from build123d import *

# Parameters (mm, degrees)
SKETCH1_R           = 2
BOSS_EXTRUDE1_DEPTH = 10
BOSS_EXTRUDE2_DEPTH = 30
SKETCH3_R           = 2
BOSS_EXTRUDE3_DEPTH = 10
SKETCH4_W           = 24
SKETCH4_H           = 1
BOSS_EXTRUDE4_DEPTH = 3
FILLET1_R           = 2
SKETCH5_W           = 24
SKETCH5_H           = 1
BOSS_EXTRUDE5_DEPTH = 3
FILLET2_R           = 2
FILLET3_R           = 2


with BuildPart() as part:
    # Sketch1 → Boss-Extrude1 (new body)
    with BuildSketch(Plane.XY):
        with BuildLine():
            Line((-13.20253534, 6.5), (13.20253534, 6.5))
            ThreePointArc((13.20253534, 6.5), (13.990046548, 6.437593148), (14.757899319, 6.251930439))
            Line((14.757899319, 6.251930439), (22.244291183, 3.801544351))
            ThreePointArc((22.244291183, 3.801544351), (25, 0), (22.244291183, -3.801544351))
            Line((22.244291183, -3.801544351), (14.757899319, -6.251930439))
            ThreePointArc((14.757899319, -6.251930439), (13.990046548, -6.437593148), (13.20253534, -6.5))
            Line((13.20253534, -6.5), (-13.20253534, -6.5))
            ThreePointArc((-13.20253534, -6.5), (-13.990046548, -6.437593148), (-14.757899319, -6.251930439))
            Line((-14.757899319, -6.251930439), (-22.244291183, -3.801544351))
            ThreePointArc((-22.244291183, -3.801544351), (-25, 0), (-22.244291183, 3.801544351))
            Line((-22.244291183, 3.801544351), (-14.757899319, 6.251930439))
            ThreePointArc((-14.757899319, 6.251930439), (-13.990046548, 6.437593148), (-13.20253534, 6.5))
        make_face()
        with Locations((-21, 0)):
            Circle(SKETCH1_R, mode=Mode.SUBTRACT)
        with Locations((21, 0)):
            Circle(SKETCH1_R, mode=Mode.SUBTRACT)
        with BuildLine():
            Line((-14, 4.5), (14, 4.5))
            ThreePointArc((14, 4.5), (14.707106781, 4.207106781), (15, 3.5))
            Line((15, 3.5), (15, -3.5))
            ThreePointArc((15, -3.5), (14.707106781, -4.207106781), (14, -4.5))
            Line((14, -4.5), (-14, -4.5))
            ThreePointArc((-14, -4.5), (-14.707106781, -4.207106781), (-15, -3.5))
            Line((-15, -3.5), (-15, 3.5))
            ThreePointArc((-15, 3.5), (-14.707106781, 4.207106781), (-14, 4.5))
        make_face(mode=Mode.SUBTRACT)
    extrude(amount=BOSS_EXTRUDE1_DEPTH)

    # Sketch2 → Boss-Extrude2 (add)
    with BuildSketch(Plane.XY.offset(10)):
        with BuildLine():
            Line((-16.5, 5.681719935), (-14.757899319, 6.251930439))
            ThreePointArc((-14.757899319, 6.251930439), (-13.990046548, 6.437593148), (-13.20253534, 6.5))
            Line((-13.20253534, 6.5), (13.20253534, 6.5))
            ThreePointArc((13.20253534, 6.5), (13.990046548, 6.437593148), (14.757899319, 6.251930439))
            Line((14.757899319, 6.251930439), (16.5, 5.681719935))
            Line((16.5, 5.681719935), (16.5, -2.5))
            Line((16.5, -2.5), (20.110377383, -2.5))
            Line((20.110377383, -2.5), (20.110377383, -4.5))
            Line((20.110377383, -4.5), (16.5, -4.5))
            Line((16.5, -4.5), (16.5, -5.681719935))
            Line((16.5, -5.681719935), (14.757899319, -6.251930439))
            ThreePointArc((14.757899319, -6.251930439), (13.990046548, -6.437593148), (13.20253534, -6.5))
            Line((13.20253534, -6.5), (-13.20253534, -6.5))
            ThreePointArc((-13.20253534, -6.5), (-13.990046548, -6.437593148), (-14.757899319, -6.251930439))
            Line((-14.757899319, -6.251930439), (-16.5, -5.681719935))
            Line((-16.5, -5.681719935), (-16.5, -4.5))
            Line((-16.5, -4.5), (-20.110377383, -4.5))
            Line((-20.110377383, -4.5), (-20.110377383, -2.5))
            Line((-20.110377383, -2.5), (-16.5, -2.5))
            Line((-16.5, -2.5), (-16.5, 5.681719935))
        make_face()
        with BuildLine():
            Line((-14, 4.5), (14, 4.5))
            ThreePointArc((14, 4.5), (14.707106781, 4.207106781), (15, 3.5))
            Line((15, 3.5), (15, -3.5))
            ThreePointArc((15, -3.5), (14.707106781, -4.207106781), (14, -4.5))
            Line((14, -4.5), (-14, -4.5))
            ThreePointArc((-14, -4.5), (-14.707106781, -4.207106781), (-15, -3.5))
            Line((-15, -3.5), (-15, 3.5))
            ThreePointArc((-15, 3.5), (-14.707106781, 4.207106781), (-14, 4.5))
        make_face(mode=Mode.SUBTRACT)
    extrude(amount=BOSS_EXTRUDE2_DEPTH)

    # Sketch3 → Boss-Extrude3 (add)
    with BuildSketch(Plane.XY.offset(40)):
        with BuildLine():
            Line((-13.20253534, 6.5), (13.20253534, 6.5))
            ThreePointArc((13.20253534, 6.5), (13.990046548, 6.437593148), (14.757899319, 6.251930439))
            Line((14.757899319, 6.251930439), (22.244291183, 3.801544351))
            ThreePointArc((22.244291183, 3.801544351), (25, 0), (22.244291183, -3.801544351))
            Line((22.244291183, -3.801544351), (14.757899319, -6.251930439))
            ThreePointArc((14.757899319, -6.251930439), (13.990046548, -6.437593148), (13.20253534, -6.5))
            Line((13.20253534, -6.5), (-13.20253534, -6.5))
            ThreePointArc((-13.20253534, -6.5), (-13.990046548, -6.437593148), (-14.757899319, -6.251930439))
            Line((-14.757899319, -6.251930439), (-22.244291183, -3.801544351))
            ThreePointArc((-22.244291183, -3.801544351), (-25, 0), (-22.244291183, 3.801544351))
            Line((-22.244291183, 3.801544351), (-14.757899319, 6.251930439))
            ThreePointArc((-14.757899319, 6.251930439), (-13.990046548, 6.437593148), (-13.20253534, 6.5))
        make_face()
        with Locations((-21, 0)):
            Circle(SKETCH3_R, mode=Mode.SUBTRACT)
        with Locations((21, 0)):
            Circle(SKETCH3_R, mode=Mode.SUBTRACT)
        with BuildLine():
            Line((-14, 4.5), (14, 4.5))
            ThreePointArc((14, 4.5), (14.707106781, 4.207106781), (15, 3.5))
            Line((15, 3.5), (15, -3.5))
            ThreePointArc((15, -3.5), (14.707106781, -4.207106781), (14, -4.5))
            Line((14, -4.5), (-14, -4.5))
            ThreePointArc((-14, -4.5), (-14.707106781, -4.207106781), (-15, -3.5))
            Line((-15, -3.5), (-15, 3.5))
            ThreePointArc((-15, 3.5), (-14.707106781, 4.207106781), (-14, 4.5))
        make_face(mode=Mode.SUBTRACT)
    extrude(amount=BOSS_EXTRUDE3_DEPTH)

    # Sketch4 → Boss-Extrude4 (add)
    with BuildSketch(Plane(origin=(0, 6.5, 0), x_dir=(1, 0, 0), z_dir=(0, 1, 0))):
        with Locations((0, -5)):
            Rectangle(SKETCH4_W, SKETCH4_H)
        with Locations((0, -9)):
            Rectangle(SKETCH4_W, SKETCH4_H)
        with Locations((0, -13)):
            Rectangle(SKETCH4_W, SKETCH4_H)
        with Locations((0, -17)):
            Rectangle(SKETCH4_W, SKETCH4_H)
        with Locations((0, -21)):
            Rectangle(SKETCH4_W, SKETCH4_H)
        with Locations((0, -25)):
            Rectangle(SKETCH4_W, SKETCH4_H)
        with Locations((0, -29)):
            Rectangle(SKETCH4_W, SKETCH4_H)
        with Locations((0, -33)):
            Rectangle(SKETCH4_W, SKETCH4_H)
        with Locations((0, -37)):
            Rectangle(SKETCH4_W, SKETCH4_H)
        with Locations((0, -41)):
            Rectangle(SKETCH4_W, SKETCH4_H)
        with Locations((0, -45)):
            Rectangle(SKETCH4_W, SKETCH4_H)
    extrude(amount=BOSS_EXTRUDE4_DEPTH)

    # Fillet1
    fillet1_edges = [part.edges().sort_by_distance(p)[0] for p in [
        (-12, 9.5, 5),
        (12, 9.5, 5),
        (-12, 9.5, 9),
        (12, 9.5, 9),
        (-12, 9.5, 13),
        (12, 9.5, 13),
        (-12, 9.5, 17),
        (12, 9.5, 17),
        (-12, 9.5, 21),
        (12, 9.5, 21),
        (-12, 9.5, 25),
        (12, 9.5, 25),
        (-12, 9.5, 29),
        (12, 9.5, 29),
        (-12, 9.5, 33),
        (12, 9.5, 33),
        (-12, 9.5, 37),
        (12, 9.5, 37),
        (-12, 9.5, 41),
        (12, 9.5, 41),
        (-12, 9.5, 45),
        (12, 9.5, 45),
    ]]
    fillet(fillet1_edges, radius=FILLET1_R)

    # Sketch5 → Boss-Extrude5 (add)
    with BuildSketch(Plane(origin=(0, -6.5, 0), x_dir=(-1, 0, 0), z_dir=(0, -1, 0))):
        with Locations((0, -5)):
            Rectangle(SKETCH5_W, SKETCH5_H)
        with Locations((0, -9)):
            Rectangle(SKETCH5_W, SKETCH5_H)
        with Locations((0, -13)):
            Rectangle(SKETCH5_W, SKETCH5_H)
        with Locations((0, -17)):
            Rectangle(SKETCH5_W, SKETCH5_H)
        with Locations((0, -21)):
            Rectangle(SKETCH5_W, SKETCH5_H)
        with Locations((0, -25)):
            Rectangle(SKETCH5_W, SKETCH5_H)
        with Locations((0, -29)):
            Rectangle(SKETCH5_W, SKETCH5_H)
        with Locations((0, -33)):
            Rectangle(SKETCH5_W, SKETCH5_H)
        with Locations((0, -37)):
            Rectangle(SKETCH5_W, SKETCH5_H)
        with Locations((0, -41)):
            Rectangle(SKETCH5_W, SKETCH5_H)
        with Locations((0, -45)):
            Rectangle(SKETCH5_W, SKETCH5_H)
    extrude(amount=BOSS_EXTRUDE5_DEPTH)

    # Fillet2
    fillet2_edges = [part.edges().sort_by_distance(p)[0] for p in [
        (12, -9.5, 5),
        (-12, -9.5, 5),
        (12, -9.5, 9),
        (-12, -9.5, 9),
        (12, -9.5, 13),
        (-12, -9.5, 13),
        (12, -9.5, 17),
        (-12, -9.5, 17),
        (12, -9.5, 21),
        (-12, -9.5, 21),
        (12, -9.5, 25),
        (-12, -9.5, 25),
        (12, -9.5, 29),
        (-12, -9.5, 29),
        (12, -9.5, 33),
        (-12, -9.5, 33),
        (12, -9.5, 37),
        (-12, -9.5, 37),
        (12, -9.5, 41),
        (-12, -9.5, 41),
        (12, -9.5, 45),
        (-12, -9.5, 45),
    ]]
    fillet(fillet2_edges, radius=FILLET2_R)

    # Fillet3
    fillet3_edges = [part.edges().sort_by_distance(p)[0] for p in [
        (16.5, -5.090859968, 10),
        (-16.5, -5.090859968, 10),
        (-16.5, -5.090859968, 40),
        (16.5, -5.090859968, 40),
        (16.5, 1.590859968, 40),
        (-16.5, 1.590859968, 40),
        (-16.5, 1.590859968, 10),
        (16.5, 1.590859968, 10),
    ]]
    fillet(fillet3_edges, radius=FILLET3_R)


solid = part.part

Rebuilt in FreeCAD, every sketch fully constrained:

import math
import FreeCAD as App
import Part
import Sketcher
Q = App.Units.Quantity


def edges_at(feature, points):
    """Names of the edges that pass closest to the given points."""
    edges = feature.Shape.Edges
    near = lambda p: min(range(len(edges)), key=lambda i: edges[i].distToShape(Part.Vertex(*p))[0])
    return sorted({f"Edge{near(p) + 1}" for p in points})


def add_polygon(sketch, points):
    """Adds a closed chain of lines whose ends are joined by coincident constraints."""
    first, n = sketch.GeometryCount, len(points)
    for a, b in zip(points, points[1:] + points[:1]):
        sketch.addGeometry(Part.LineSegment(App.Vector(*a, 0), App.Vector(*b, 0)), False)
    for i in range(n):
        sketch.addConstraint(Sketcher.Constraint("Coincident", first + i, 2, first + (i + 1) % n, 1))

doc = App.newDocument("Part")
params = doc.addObject("Spreadsheet::Sheet", "Params")
for row, (alias, value) in enumerate([
    ("sketch1_diameter", "4 mm"),
    ("sketch1_radius", "5 mm"),
    ("sketch1_radius2", "4 mm"),
    ("sketch1_radius3", "1 mm"),
    ("sketch1_width", "28 mm"),
    ("pad1_length", "10 mm"),
    ("sketch2_radius", "5 mm"),
    ("sketch2_radius2", "1 mm"),
    ("sketch2_width", "28 mm"),
    ("sketch2_height", "2 mm"),
    ("sketch2_height2", "7 mm"),
    ("pad2_length", "30 mm"),
    ("sketch3_diameter", "4 mm"),
    ("sketch3_radius", "5 mm"),
    ("sketch3_radius2", "4 mm"),
    ("sketch3_radius3", "1 mm"),
    ("sketch3_width", "28 mm"),
    ("pad3_length", "10 mm"),
    ("sketch4_width", "24 mm"),
    ("sketch4_height", "1 mm"),
    ("pad4_length", "3 mm"),
    ("fillet_radius", "2 mm"),
    ("sketch5_width", "24 mm"),
    ("sketch5_height", "1 mm"),
    ("pad5_length", "3 mm"),
    ("fillet2_radius", "2 mm"),
    ("fillet3_radius", "2 mm"),
], start=1):
    params.set(f"A{row}", alias)
    params.set(f"B{row}", "=" + value)
    params.setAlias(f"B{row}", alias)

body = doc.addObject("PartDesign::Body", "Body")

# Sketch on XY plane
sketch1 = doc.addObject("Sketcher::SketchObject", "Sketch")
body.addObject(sketch1)
sketch1.AttachmentSupport = (doc.XY_Plane, [""])
sketch1.MapMode = "FlatFace"
sketch1.addGeometry([
    Part.LineSegment(App.Vector(13.202535, 6.5, 0), App.Vector(-13.202535, 6.5, 0)),  # 0
    Part.ArcOfCircle(Part.Circle(App.Vector(-13.202535, 1.5, 0), App.Vector(0, 0, 1), 5), math.radians(90), math.radians(108.123894)),  # 1
    Part.LineSegment(App.Vector(-14.757899, 6.25193, 0), App.Vector(-22.244291, 3.801544, 0)),  # 2
    Part.ArcOfCircle(Part.Circle(App.Vector(-21, 0, 0), App.Vector(0, 0, 1), 4), math.radians(108.123894), math.radians(251.876106)),  # 3
    Part.LineSegment(App.Vector(-22.244291, -3.801544, 0), App.Vector(-14.757899, -6.25193, 0)),  # 4
    Part.ArcOfCircle(Part.Circle(App.Vector(-13.202535, -1.5, 0), App.Vector(0, 0, 1), 5), math.radians(-108.123894), math.radians(-90)),  # 5
    Part.LineSegment(App.Vector(-13.202535, -6.5, 0), App.Vector(13.202535, -6.5, 0)),  # 6
    Part.ArcOfCircle(Part.Circle(App.Vector(13.202535, -1.5, 0), App.Vector(0, 0, 1), 5), math.radians(-90), math.radians(-71.876106)),  # 7
    Part.LineSegment(App.Vector(14.757899, -6.25193, 0), App.Vector(22.244291, -3.801544, 0)),  # 8
    Part.ArcOfCircle(Part.Circle(App.Vector(21, 0, 0), App.Vector(0, 0, 1), 4), math.radians(-71.876106), math.radians(71.876106)),  # 9
    Part.LineSegment(App.Vector(22.244291, 3.801544, 0), App.Vector(14.757899, 6.25193, 0)),  # 10
    Part.ArcOfCircle(Part.Circle(App.Vector(13.202535, 1.5, 0), App.Vector(0, 0, 1), 5), math.radians(71.876106), math.radians(90)),  # 11
    Part.Circle(App.Vector(21, 0, 0), App.Vector(0, 0, 1), 2),  # 12
    Part.LineSegment(App.Vector(-14, 4.5, 0), App.Vector(14, 4.5, 0)),  # 13
    Part.ArcOfCircle(Part.Circle(App.Vector(14, 3.5, 0), App.Vector(0, 0, 1), 1), math.radians(0), math.radians(90)),  # 14
    Part.LineSegment(App.Vector(15, 3.5, 0), App.Vector(15, -3.5, 0)),  # 15
    Part.ArcOfCircle(Part.Circle(App.Vector(14, -3.5, 0), App.Vector(0, 0, 1), 1), math.radians(-90), math.radians(0)),  # 16
    Part.LineSegment(App.Vector(14, -4.5, 0), App.Vector(-14, -4.5, 0)),  # 17
    Part.ArcOfCircle(Part.Circle(App.Vector(-14, -3.5, 0), App.Vector(0, 0, 1), 1), math.radians(-180), math.radians(-90)),  # 18
    Part.LineSegment(App.Vector(-15, -3.5, 0), App.Vector(-15, 3.5, 0)),  # 19
    Part.ArcOfCircle(Part.Circle(App.Vector(-14, 3.5, 0), App.Vector(0, 0, 1), 1), math.radians(90), math.radians(180)),  # 20
    Part.Circle(App.Vector(-21, 0, 0), App.Vector(0, 0, 1), 2),  # 21
], False)
sketch1.addConstraint([
    Sketcher.Constraint("Tangent", 0, 2, 1, 1),
    Sketcher.Constraint("Tangent", 1, 2, 2, 1),
    Sketcher.Constraint("Tangent", 2, 2, 3, 1),
    Sketcher.Constraint("Tangent", 3, 2, 4, 1),
    Sketcher.Constraint("Tangent", 4, 2, 5, 1),
    Sketcher.Constraint("Tangent", 5, 2, 6, 1),
    Sketcher.Constraint("Tangent", 6, 2, 7, 1),
    Sketcher.Constraint("Tangent", 7, 2, 8, 1),
    Sketcher.Constraint("Tangent", 8, 2, 9, 1),
    Sketcher.Constraint("Tangent", 9, 2, 10, 1),
    Sketcher.Constraint("Tangent", 10, 2, 11, 1),
    Sketcher.Constraint("Tangent", 11, 2, 0, 1),
    Sketcher.Constraint("Tangent", 13, 2, 14, 2),
    Sketcher.Constraint("Tangent", 14, 1, 15, 1),
    Sketcher.Constraint("Tangent", 15, 2, 16, 2),
    Sketcher.Constraint("Tangent", 16, 1, 17, 1),
    Sketcher.Constraint("Tangent", 17, 2, 18, 2),
    Sketcher.Constraint("Tangent", 18, 1, 19, 1),
    Sketcher.Constraint("Tangent", 19, 2, 20, 2),
    Sketcher.Constraint("Tangent", 20, 1, 13, 1),
    Sketcher.Constraint("Horizontal", 0),
    Sketcher.Constraint("Horizontal", 6),
    Sketcher.Constraint("Horizontal", 13),
    Sketcher.Constraint("Vertical", 15),
    Sketcher.Constraint("Horizontal", 17),
    Sketcher.Constraint("Vertical", 19),
    Sketcher.Constraint("Coincident", 12, 3, 9, 3),
    Sketcher.Constraint("Coincident", 21, 3, 3, 3),
    Sketcher.Constraint("Equal", 1, 5),
    Sketcher.Constraint("Equal", 5, 7),
    Sketcher.Constraint("Equal", 3, 9),
    Sketcher.Constraint("Equal", 7, 11),
    Sketcher.Constraint("Equal", 14, 16),
    Sketcher.Constraint("Equal", 16, 18),
    Sketcher.Constraint("Equal", 18, 20),
    Sketcher.Constraint("Equal", 12, 21),
    Sketcher.Constraint("Symmetric", 1, 3, 7, 3, -1, 1),
    Sketcher.Constraint("Symmetric", 3, 3, 9, 3, -1, 1),
    Sketcher.Constraint("Symmetric", 14, 3, 18, 3, -1, 1),
    Sketcher.Constraint("Symmetric", 4, 2, 7, 2, -2),
    Sketcher.Constraint("Parallel", 4, 10),
    Sketcher.Constraint("Diameter", 12, Q("4 mm")),
    Sketcher.Constraint("Radius", 1, Q("5 mm")),
    Sketcher.Constraint("Radius", 3, Q("4 mm")),
    Sketcher.Constraint("Radius", 14, Q("1 mm")),
    Sketcher.Constraint("DistanceX", 13, 1, 13, 2, Q("28 mm")),
    Sketcher.Constraint("DistanceY", 15, 2, 15, 1, Q("7 mm")),
    Sketcher.Constraint("DistanceX", 3, 3, -1, 1, Q("21 mm")),
    Sketcher.Constraint("DistanceY", 5, 3, 1, 3, Q("3 mm")),
    Sketcher.Constraint("DistanceX", 0, 2, 0, 1, Q("26.405071 mm")),
])
sketch1.setExpression("Constraints[41]", "Params.sketch1_diameter")
sketch1.setExpression("Constraints[42]", "Params.sketch1_radius")
sketch1.setExpression("Constraints[43]", "Params.sketch1_radius2")
sketch1.setExpression("Constraints[44]", "Params.sketch1_radius3")
sketch1.setExpression("Constraints[45]", "Params.sketch1_width")
pad1 = doc.addObject("PartDesign::Pad", "Pad")
body.addObject(pad1)
pad1.Profile = sketch1
pad1.setExpression("Length", "Params.pad1_length")

# Sketch on XY plane
sketch2 = doc.addObject("Sketcher::SketchObject", "Sketch001")
body.addObject(sketch2)
sketch2.AttachmentSupport = (doc.XY_Plane, [""])
sketch2.MapMode = "FlatFace"
sketch2.AttachmentOffset = App.Placement(App.Vector(0, 0, 10), App.Rotation())
sketch2.addGeometry([
    Part.LineSegment(App.Vector(-14.757899, 6.25193, 0), App.Vector(-16.5, 5.68172, 0)),  # 0
    Part.LineSegment(App.Vector(-16.5, 5.68172, 0), App.Vector(-16.5, -2.5, 0)),  # 1
    Part.LineSegment(App.Vector(-16.5, -2.5, 0), App.Vector(-20.110377, -2.5, 0)),  # 2
    Part.LineSegment(App.Vector(-20.110377, -2.5, 0), App.Vector(-20.110377, -4.5, 0)),  # 3
    Part.LineSegment(App.Vector(-20.110377, -4.5, 0), App.Vector(-16.5, -4.5, 0)),  # 4
    Part.LineSegment(App.Vector(-16.5, -4.5, 0), App.Vector(-16.5, -5.68172, 0)),  # 5
    Part.LineSegment(App.Vector(-16.5, -5.68172, 0), App.Vector(-14.757899, -6.25193, 0)),  # 6
    Part.ArcOfCircle(Part.Circle(App.Vector(-13.202535, -1.5, 0), App.Vector(0, 0, 1), 5), math.radians(-108.123894), math.radians(-90)),  # 7
    Part.LineSegment(App.Vector(-13.202535, -6.5, 0), App.Vector(13.202535, -6.5, 0)),  # 8
    Part.ArcOfCircle(Part.Circle(App.Vector(13.202535, -1.5, 0), App.Vector(0, 0, 1), 5), math.radians(-90), math.radians(-71.876106)),  # 9
    Part.LineSegment(App.Vector(14.757899, -6.25193, 0), App.Vector(16.5, -5.68172, 0)),  # 10
    Part.LineSegment(App.Vector(16.5, -5.68172, 0), App.Vector(16.5, -4.5, 0)),  # 11
    Part.LineSegment(App.Vector(16.5, -4.5, 0), App.Vector(20.110377, -4.5, 0)),  # 12
    Part.LineSegment(App.Vector(20.110377, -4.5, 0), App.Vector(20.110377, -2.5, 0)),  # 13
    Part.LineSegment(App.Vector(20.110377, -2.5, 0), App.Vector(16.5, -2.5, 0)),  # 14
    Part.LineSegment(App.Vector(16.5, -2.5, 0), App.Vector(16.5, 5.68172, 0)),  # 15
    Part.LineSegment(App.Vector(16.5, 5.68172, 0), App.Vector(14.757899, 6.25193, 0)),  # 16
    Part.ArcOfCircle(Part.Circle(App.Vector(13.202535, 1.5, 0), App.Vector(0, 0, 1), 5), math.radians(71.876106), math.radians(90)),  # 17
    Part.LineSegment(App.Vector(13.202535, 6.5, 0), App.Vector(-13.202535, 6.5, 0)),  # 18
    Part.ArcOfCircle(Part.Circle(App.Vector(-13.202535, 1.5, 0), App.Vector(0, 0, 1), 5), math.radians(90), math.radians(108.123894)),  # 19
    Part.LineSegment(App.Vector(-14, 4.5, 0), App.Vector(14, 4.5, 0)),  # 20
    Part.ArcOfCircle(Part.Circle(App.Vector(14, 3.5, 0), App.Vector(0, 0, 1), 1), math.radians(0), math.radians(90)),  # 21
    Part.LineSegment(App.Vector(15, 3.5, 0), App.Vector(15, -3.5, 0)),  # 22
    Part.ArcOfCircle(Part.Circle(App.Vector(14, -3.5, 0), App.Vector(0, 0, 1), 1), math.radians(-90), math.radians(0)),  # 23
    Part.LineSegment(App.Vector(14, -4.5, 0), App.Vector(-14, -4.5, 0)),  # 24
    Part.ArcOfCircle(Part.Circle(App.Vector(-14, -3.5, 0), App.Vector(0, 0, 1), 1), math.radians(-180), math.radians(-90)),  # 25
    Part.LineSegment(App.Vector(-15, -3.5, 0), App.Vector(-15, 3.5, 0)),  # 26
    Part.ArcOfCircle(Part.Circle(App.Vector(-14, 3.5, 0), App.Vector(0, 0, 1), 1), math.radians(90), math.radians(180)),  # 27
], False)
sketch2.addConstraint([
    Sketcher.Constraint("Coincident", 0, 2, 1, 1),
    Sketcher.Constraint("Coincident", 1, 2, 2, 1),
    Sketcher.Constraint("Coincident", 2, 2, 3, 1),
    Sketcher.Constraint("Coincident", 3, 2, 4, 1),
    Sketcher.Constraint("Coincident", 4, 2, 5, 1),
    Sketcher.Constraint("Coincident", 5, 2, 6, 1),
    Sketcher.Constraint("Tangent", 6, 2, 7, 1),
    Sketcher.Constraint("Tangent", 7, 2, 8, 1),
    Sketcher.Constraint("Tangent", 8, 2, 9, 1),
    Sketcher.Constraint("Tangent", 9, 2, 10, 1),
    Sketcher.Constraint("Coincident", 10, 2, 11, 1),
    Sketcher.Constraint("Coincident", 11, 2, 12, 1),
    Sketcher.Constraint("Coincident", 12, 2, 13, 1),
    Sketcher.Constraint("Coincident", 13, 2, 14, 1),
    Sketcher.Constraint("Coincident", 14, 2, 15, 1),
    Sketcher.Constraint("Coincident", 15, 2, 16, 1),
    Sketcher.Constraint("Tangent", 16, 2, 17, 1),
    Sketcher.Constraint("Tangent", 17, 2, 18, 1),
    Sketcher.Constraint("Tangent", 18, 2, 19, 1),
    Sketcher.Constraint("Tangent", 19, 2, 0, 1),
    Sketcher.Constraint("Tangent", 20, 2, 21, 2),
    Sketcher.Constraint("Tangent", 21, 1, 22, 1),
    Sketcher.Constraint("Tangent", 22, 2, 23, 2),
    Sketcher.Constraint("Tangent", 23, 1, 24, 1),
    Sketcher.Constraint("Tangent", 24, 2, 25, 2),
    Sketcher.Constraint("Tangent", 25, 1, 26, 1),
    Sketcher.Constraint("Tangent", 26, 2, 27, 2),
    Sketcher.Constraint("Tangent", 27, 1, 20, 1),
    Sketcher.Constraint("Vertical", 1),
    Sketcher.Constraint("Horizontal", 2),
    Sketcher.Constraint("Vertical", 3),
    Sketcher.Constraint("Horizontal", 4),
    Sketcher.Constraint("Vertical", 5),
    Sketcher.Constraint("Horizontal", 8),
    Sketcher.Constraint("Vertical", 11),
    Sketcher.Constraint("Horizontal", 12),
    Sketcher.Constraint("Vertical", 13),
    Sketcher.Constraint("Horizontal", 14),
    Sketcher.Constraint("Vertical", 15),
    Sketcher.Constraint("Horizontal", 18),
    Sketcher.Constraint("Horizontal", 20),
    Sketcher.Constraint("Vertical", 22),
    Sketcher.Constraint("Horizontal", 24),
    Sketcher.Constraint("Vertical", 26),
    Sketcher.Constraint("Equal", 7, 9),
    Sketcher.Constraint("Equal", 9, 17),
    Sketcher.Constraint("Equal", 17, 19),
    Sketcher.Constraint("Equal", 21, 23),
    Sketcher.Constraint("Equal", 23, 25),
    Sketcher.Constraint("Equal", 25, 27),
    Sketcher.Constraint("Symmetric", 7, 3, 17, 3, -1, 1),
    Sketcher.Constraint("Symmetric", 21, 3, 25, 3, -1, 1),
    Sketcher.Constraint("Symmetric", 0, 2, 10, 2, -1, 1),
    Sketcher.Constraint("Symmetric", 5, 2, 15, 2, -1, 1),
    Sketcher.Constraint("Symmetric", 6, 2, 9, 2, -2),
    Sketcher.Constraint("Symmetric", 4, 2, 11, 2, -2),
    Sketcher.Constraint("Symmetric", 2, 2, 13, 2, -2),
    Sketcher.Constraint("Parallel", 0, 10),
    Sketcher.Constraint("Horizontal", 12, 2, 23, 1),
    Sketcher.Constraint("Radius", 7, Q("5 mm")),
    Sketcher.Constraint("Radius", 21, Q("1 mm")),
    Sketcher.Constraint("DistanceX", 20, 1, 20, 2, Q("28 mm")),
    Sketcher.Constraint("DistanceY", 3, 2, 3, 1, Q("2 mm")),
    Sketcher.Constraint("DistanceY", 22, 2, 22, 1, Q("7 mm")),
    Sketcher.Constraint("DistanceY", 9, 3, 17, 3, Q("3 mm")),
    Sketcher.Constraint("DistanceX", 0, 2, -1, 1, Q("16.5 mm")),
    Sketcher.Constraint("DistanceX", 8, 1, 8, 2, Q("26.405071 mm")),
    Sketcher.Constraint("DistanceY", 1, 2, 1, 1, Q("8.18172 mm")),
    Sketcher.Constraint("DistanceX", 2, 2, 2, 1, Q("3.610377 mm")),
])
sketch2.setExpression("Constraints[59]", "Params.sketch2_radius")
sketch2.setExpression("Constraints[60]", "Params.sketch2_radius2")
sketch2.setExpression("Constraints[61]", "Params.sketch2_width")
sketch2.setExpression("Constraints[62]", "Params.sketch2_height")
sketch2.setExpression("Constraints[63]", "Params.sketch2_height2")
pad2 = doc.addObject("PartDesign::Pad", "Pad001")
body.addObject(pad2)
pad2.Profile = sketch2
pad2.setExpression("Length", "Params.pad2_length")

# Sketch on XY plane
sketch3 = doc.addObject("Sketcher::SketchObject", "Sketch002")
body.addObject(sketch3)
sketch3.AttachmentSupport = (doc.XY_Plane, [""])
sketch3.MapMode = "FlatFace"
sketch3.AttachmentOffset = App.Placement(App.Vector(0, 0, 40), App.Rotation())
sketch3.addGeometry([
    Part.LineSegment(App.Vector(13.202535, 6.5, 0), App.Vector(-13.202535, 6.5, 0)),  # 0
    Part.ArcOfCircle(Part.Circle(App.Vector(-13.202535, 1.5, 0), App.Vector(0, 0, 1), 5), math.radians(90), math.radians(108.123894)),  # 1
    Part.LineSegment(App.Vector(-14.757899, 6.25193, 0), App.Vector(-22.244291, 3.801544, 0)),  # 2
    Part.ArcOfCircle(Part.Circle(App.Vector(-21, 0, 0), App.Vector(0, 0, 1), 4), math.radians(108.123894), math.radians(251.876106)),  # 3
    Part.LineSegment(App.Vector(-22.244291, -3.801544, 0), App.Vector(-14.757899, -6.25193, 0)),  # 4
    Part.ArcOfCircle(Part.Circle(App.Vector(-13.202535, -1.5, 0), App.Vector(0, 0, 1), 5), math.radians(-108.123894), math.radians(-90)),  # 5
    Part.LineSegment(App.Vector(-13.202535, -6.5, 0), App.Vector(13.202535, -6.5, 0)),  # 6
    Part.ArcOfCircle(Part.Circle(App.Vector(13.202535, -1.5, 0), App.Vector(0, 0, 1), 5), math.radians(-90), math.radians(-71.876106)),  # 7
    Part.LineSegment(App.Vector(14.757899, -6.25193, 0), App.Vector(22.244291, -3.801544, 0)),  # 8
    Part.ArcOfCircle(Part.Circle(App.Vector(21, 0, 0), App.Vector(0, 0, 1), 4), math.radians(-71.876106), math.radians(71.876106)),  # 9
    Part.LineSegment(App.Vector(22.244291, 3.801544, 0), App.Vector(14.757899, 6.25193, 0)),  # 10
    Part.ArcOfCircle(Part.Circle(App.Vector(13.202535, 1.5, 0), App.Vector(0, 0, 1), 5), math.radians(71.876106), math.radians(90)),  # 11
    Part.Circle(App.Vector(21, 0, 0), App.Vector(0, 0, 1), 2),  # 12
    Part.LineSegment(App.Vector(-14, 4.5, 0), App.Vector(14, 4.5, 0)),  # 13
    Part.ArcOfCircle(Part.Circle(App.Vector(14, 3.5, 0), App.Vector(0, 0, 1), 1), math.radians(0), math.radians(90)),  # 14
    Part.LineSegment(App.Vector(15, 3.5, 0), App.Vector(15, -3.5, 0)),  # 15
    Part.ArcOfCircle(Part.Circle(App.Vector(14, -3.5, 0), App.Vector(0, 0, 1), 1), math.radians(-90), math.radians(0)),  # 16
    Part.LineSegment(App.Vector(14, -4.5, 0), App.Vector(-14, -4.5, 0)),  # 17
    Part.ArcOfCircle(Part.Circle(App.Vector(-14, -3.5, 0), App.Vector(0, 0, 1), 1), math.radians(-180), math.radians(-90)),  # 18
    Part.LineSegment(App.Vector(-15, -3.5, 0), App.Vector(-15, 3.5, 0)),  # 19
    Part.ArcOfCircle(Part.Circle(App.Vector(-14, 3.5, 0), App.Vector(0, 0, 1), 1), math.radians(90), math.radians(180)),  # 20
    Part.Circle(App.Vector(-21, 0, 0), App.Vector(0, 0, 1), 2),  # 21
], False)
sketch3.addConstraint([
    Sketcher.Constraint("Tangent", 0, 2, 1, 1),
    Sketcher.Constraint("Tangent", 1, 2, 2, 1),
    Sketcher.Constraint("Tangent", 2, 2, 3, 1),
    Sketcher.Constraint("Tangent", 3, 2, 4, 1),
    Sketcher.Constraint("Tangent", 4, 2, 5, 1),
    Sketcher.Constraint("Tangent", 5, 2, 6, 1),
    Sketcher.Constraint("Tangent", 6, 2, 7, 1),
    Sketcher.Constraint("Tangent", 7, 2, 8, 1),
    Sketcher.Constraint("Tangent", 8, 2, 9, 1),
    Sketcher.Constraint("Tangent", 9, 2, 10, 1),
    Sketcher.Constraint("Tangent", 10, 2, 11, 1),
    Sketcher.Constraint("Tangent", 11, 2, 0, 1),
    Sketcher.Constraint("Tangent", 13, 2, 14, 2),
    Sketcher.Constraint("Tangent", 14, 1, 15, 1),
    Sketcher.Constraint("Tangent", 15, 2, 16, 2),
    Sketcher.Constraint("Tangent", 16, 1, 17, 1),
    Sketcher.Constraint("Tangent", 17, 2, 18, 2),
    Sketcher.Constraint("Tangent", 18, 1, 19, 1),
    Sketcher.Constraint("Tangent", 19, 2, 20, 2),
    Sketcher.Constraint("Tangent", 20, 1, 13, 1),
    Sketcher.Constraint("Horizontal", 0),
    Sketcher.Constraint("Horizontal", 6),
    Sketcher.Constraint("Horizontal", 13),
    Sketcher.Constraint("Vertical", 15),
    Sketcher.Constraint("Horizontal", 17),
    Sketcher.Constraint("Vertical", 19),
    Sketcher.Constraint("Coincident", 12, 3, 9, 3),
    Sketcher.Constraint("Coincident", 21, 3, 3, 3),
    Sketcher.Constraint("Equal", 1, 5),
    Sketcher.Constraint("Equal", 5, 7),
    Sketcher.Constraint("Equal", 3, 9),
    Sketcher.Constraint("Equal", 7, 11),
    Sketcher.Constraint("Equal", 14, 16),
    Sketcher.Constraint("Equal", 16, 18),
    Sketcher.Constraint("Equal", 18, 20),
    Sketcher.Constraint("Equal", 12, 21),
    Sketcher.Constraint("Symmetric", 1, 3, 7, 3, -1, 1),
    Sketcher.Constraint("Symmetric", 3, 3, 9, 3, -1, 1),
    Sketcher.Constraint("Symmetric", 14, 3, 18, 3, -1, 1),
    Sketcher.Constraint("Symmetric", 4, 2, 7, 2, -2),
    Sketcher.Constraint("Parallel", 4, 10),
    Sketcher.Constraint("Diameter", 12, Q("4 mm")),
    Sketcher.Constraint("Radius", 1, Q("5 mm")),
    Sketcher.Constraint("Radius", 3, Q("4 mm")),
    Sketcher.Constraint("Radius", 14, Q("1 mm")),
    Sketcher.Constraint("DistanceX", 13, 1, 13, 2, Q("28 mm")),
    Sketcher.Constraint("DistanceY", 15, 2, 15, 1, Q("7 mm")),
    Sketcher.Constraint("DistanceX", 3, 3, -1, 1, Q("21 mm")),
    Sketcher.Constraint("DistanceY", 5, 3, 1, 3, Q("3 mm")),
    Sketcher.Constraint("DistanceX", 0, 2, 0, 1, Q("26.405071 mm")),
])
sketch3.setExpression("Constraints[41]", "Params.sketch3_diameter")
sketch3.setExpression("Constraints[42]", "Params.sketch3_radius")
sketch3.setExpression("Constraints[43]", "Params.sketch3_radius2")
sketch3.setExpression("Constraints[44]", "Params.sketch3_radius3")
sketch3.setExpression("Constraints[45]", "Params.sketch3_width")
pad3 = doc.addObject("PartDesign::Pad", "Pad002")
body.addObject(pad3)
pad3.Profile = sketch3
pad3.setExpression("Length", "Params.pad3_length")

# Sketch on XZ plane
sketch4 = doc.addObject("Sketcher::SketchObject", "Sketch003")
body.addObject(sketch4)
sketch4.AttachmentSupport = (doc.XZ_Plane, [""])
sketch4.MapMode = "FlatFace"
sketch4.AttachmentOffset = App.Placement(App.Vector(0, 0, -6.5), App.Rotation())
add_polygon(sketch4, [(-12, 4.5), (-12, 5.5), (12, 5.5), (12, 4.5)])  # lines 0-3
add_polygon(sketch4, [(-12, 8.5), (-12, 9.5), (12, 9.5), (12, 8.5)])  # lines 4-7
add_polygon(sketch4, [(-12, 12.5), (-12, 13.5), (12, 13.5), (12, 12.5)])  # lines 8-11
add_polygon(sketch4, [(-12, 16.5), (-12, 17.5), (12, 17.5), (12, 16.5)])  # lines 12-15
add_polygon(sketch4, [(-12, 20.5), (-12, 21.5), (12, 21.5), (12, 20.5)])  # lines 16-19
add_polygon(sketch4, [(-12, 24.5), (-12, 25.5), (12, 25.5), (12, 24.5)])  # lines 20-23
add_polygon(sketch4, [(-12, 28.5), (-12, 29.5), (12, 29.5), (12, 28.5)])  # lines 24-27
add_polygon(sketch4, [(-12, 32.5), (-12, 33.5), (12, 33.5), (12, 32.5)])  # lines 28-31
add_polygon(sketch4, [(-12, 36.5), (-12, 37.5), (12, 37.5), (12, 36.5)])  # lines 32-35
add_polygon(sketch4, [(-12, 40.5), (-12, 41.5), (12, 41.5), (12, 40.5)])  # lines 36-39
add_polygon(sketch4, [(-12, 44.5), (-12, 45.5), (12, 45.5), (12, 44.5)])  # lines 40-43
sketch4.addConstraint([
    Sketcher.Constraint("Vertical", 0),
    Sketcher.Constraint("Horizontal", 1),
    Sketcher.Constraint("Vertical", 2),
    Sketcher.Constraint("Horizontal", 3),
    Sketcher.Constraint("Vertical", 4),
    Sketcher.Constraint("Horizontal", 5),
    Sketcher.Constraint("Vertical", 6),
    Sketcher.Constraint("Horizontal", 7),
    Sketcher.Constraint("Vertical", 8),
    Sketcher.Constraint("Horizontal", 9),
    Sketcher.Constraint("Vertical", 10),
    Sketcher.Constraint("Horizontal", 11),
    Sketcher.Constraint("Vertical", 12),
    Sketcher.Constraint("Horizontal", 13),
    Sketcher.Constraint("Vertical", 14),
    Sketcher.Constraint("Horizontal", 15),
    Sketcher.Constraint("Vertical", 16),
    Sketcher.Constraint("Horizontal", 17),
    Sketcher.Constraint("Vertical", 18),
    Sketcher.Constraint("Horizontal", 19),
    Sketcher.Constraint("Vertical", 20),
    Sketcher.Constraint("Horizontal", 21),
    Sketcher.Constraint("Vertical", 22),
    Sketcher.Constraint("Horizontal", 23),
    Sketcher.Constraint("Vertical", 24),
    Sketcher.Constraint("Horizontal", 25),
    Sketcher.Constraint("Vertical", 26),
    Sketcher.Constraint("Horizontal", 27),
    Sketcher.Constraint("Vertical", 28),
    Sketcher.Constraint("Horizontal", 29),
    Sketcher.Constraint("Vertical", 30),
    Sketcher.Constraint("Horizontal", 31),
    Sketcher.Constraint("Vertical", 32),
    Sketcher.Constraint("Horizontal", 33),
    Sketcher.Constraint("Vertical", 34),
    Sketcher.Constraint("Horizontal", 35),
    Sketcher.Constraint("Vertical", 36),
    Sketcher.Constraint("Horizontal", 37),
    Sketcher.Constraint("Vertical", 38),
    Sketcher.Constraint("Horizontal", 39),
    Sketcher.Constraint("Vertical", 40),
    Sketcher.Constraint("Horizontal", 41),
    Sketcher.Constraint("Vertical", 42),
    Sketcher.Constraint("Horizontal", 43),
    Sketcher.Constraint("Vertical", 3, 2, 4, 2),
    Sketcher.Constraint("Vertical", 2, 2, 5, 2),
    Sketcher.Constraint("Vertical", 7, 2, 8, 2),
    Sketcher.Constraint("Vertical", 6, 2, 9, 2),
    Sketcher.Constraint("Vertical", 11, 2, 12, 2),
    Sketcher.Constraint("Vertical", 10, 2, 13, 2),
    Sketcher.Constraint("Vertical", 15, 2, 16, 2),
    Sketcher.Constraint("Vertical", 14, 2, 17, 2),
    Sketcher.Constraint("Vertical", 19, 2, 20, 2),
    Sketcher.Constraint("Vertical", 18, 2, 21, 2),
    Sketcher.Constraint("Vertical", 23, 2, 24, 2),
    Sketcher.Constraint("Vertical", 22, 2, 25, 2),
    Sketcher.Constraint("Vertical", 27, 2, 28, 2),
    Sketcher.Constraint("Vertical", 26, 2, 29, 2),
    Sketcher.Constraint("Vertical", 31, 2, 32, 2),
    Sketcher.Constraint("Vertical", 30, 2, 33, 2),
    Sketcher.Constraint("Vertical", 35, 2, 36, 2),
    Sketcher.Constraint("Vertical", 34, 2, 37, 2),
    Sketcher.Constraint("Vertical", 39, 2, 40, 2),
    Sketcher.Constraint("Vertical", 38, 2, 41, 2),
    Sketcher.Constraint("Equal", 2, 4),
    Sketcher.Constraint("Equal", 6, 8),
    Sketcher.Constraint("Equal", 10, 12),
    Sketcher.Constraint("Equal", 14, 16),
    Sketcher.Constraint("Equal", 18, 20),
    Sketcher.Constraint("Equal", 22, 24),
    Sketcher.Constraint("Equal", 26, 28),
    Sketcher.Constraint("Equal", 30, 32),
    Sketcher.Constraint("Equal", 34, 36),
    Sketcher.Constraint("Equal", 38, 40),
    Sketcher.Constraint("DistanceX", 1, 1, 1, 2, Q("24 mm")),
    Sketcher.Constraint("DistanceY", 0, 1, 0, 2, Q("1 mm")),
    Sketcher.Constraint("DistanceX", 0, 2, -1, 1, Q("12 mm")),
    Sketcher.Constraint("DistanceY", 0, 2, 4, 2, Q("4 mm")),
    Sketcher.Constraint("DistanceY", 4, 2, 8, 2, Q("4 mm")),
    Sketcher.Constraint("DistanceY", 8, 2, 12, 2, Q("4 mm")),
    Sketcher.Constraint("DistanceY", 12, 2, 16, 2, Q("4 mm")),
    Sketcher.Constraint("DistanceY", 16, 2, 20, 2, Q("4 mm")),
    Sketcher.Constraint("DistanceY", 20, 2, 24, 2, Q("4 mm")),
    Sketcher.Constraint("DistanceY", 24, 2, 28, 2, Q("4 mm")),
    Sketcher.Constraint("DistanceY", 28, 2, 32, 2, Q("4 mm")),
    Sketcher.Constraint("DistanceY", 32, 2, 36, 2, Q("4 mm")),
    Sketcher.Constraint("DistanceY", 36, 2, 40, 2, Q("4 mm")),
    Sketcher.Constraint("DistanceY", -1, 1, 0, 2, Q("5.5 mm")),
])
sketch4.setExpression("Constraints[118]", "Params.sketch4_width")
sketch4.setExpression("Constraints[119]", "Params.sketch4_height")
pad4 = doc.addObject("PartDesign::Pad", "Pad003")
body.addObject(pad4)
pad4.Profile = sketch4
pad4.setExpression("Length", "Params.pad4_length")
pad4.Reversed = True
doc.recompute()

fillet = doc.addObject("PartDesign::Fillet", "Fillet")
body.addObject(fillet)
fillet.Base = (pad4, edges_at(pad4, [
    (-12, 9.5, 5),
    (12, 9.5, 5),
    (-12, 9.5, 9),
    (12, 9.5, 9),
    (-12, 9.5, 13),
    (12, 9.5, 13),
    (-12, 9.5, 17),
    (12, 9.5, 17),
    (-12, 9.5, 21),
    (12, 9.5, 21),
    (-12, 9.5, 25),
    (12, 9.5, 25),
    (-12, 9.5, 29),
    (12, 9.5, 29),
    (-12, 9.5, 33),
    (12, 9.5, 33),
    (-12, 9.5, 37),
    (12, 9.5, 37),
    (-12, 9.5, 41),
    (12, 9.5, 41),
    (-12, 9.5, 45),
    (12, 9.5, 45),
]))
fillet.setExpression("Radius", "Params.fillet_radius")

# Sketch on XZ plane
sketch5 = doc.addObject("Sketcher::SketchObject", "Sketch004")
body.addObject(sketch5)
sketch5.AttachmentSupport = (doc.XZ_Plane, [""])
sketch5.MapMode = "FlatFace"
sketch5.AttachmentOffset = App.Placement(App.Vector(0, 0, 6.5), App.Rotation())
add_polygon(sketch5, [(12, 4.5), (12, 5.5), (-12, 5.5), (-12, 4.5)])  # lines 0-3
add_polygon(sketch5, [(12, 8.5), (12, 9.5), (-12, 9.5), (-12, 8.5)])  # lines 4-7
add_polygon(sketch5, [(12, 12.5), (12, 13.5), (-12, 13.5), (-12, 12.5)])  # lines 8-11
add_polygon(sketch5, [(12, 16.5), (12, 17.5), (-12, 17.5), (-12, 16.5)])  # lines 12-15
add_polygon(sketch5, [(12, 20.5), (12, 21.5), (-12, 21.5), (-12, 20.5)])  # lines 16-19
add_polygon(sketch5, [(12, 24.5), (12, 25.5), (-12, 25.5), (-12, 24.5)])  # lines 20-23
add_polygon(sketch5, [(12, 28.5), (12, 29.5), (-12, 29.5), (-12, 28.5)])  # lines 24-27
add_polygon(sketch5, [(12, 32.5), (12, 33.5), (-12, 33.5), (-12, 32.5)])  # lines 28-31
add_polygon(sketch5, [(12, 36.5), (12, 37.5), (-12, 37.5), (-12, 36.5)])  # lines 32-35
add_polygon(sketch5, [(12, 40.5), (12, 41.5), (-12, 41.5), (-12, 40.5)])  # lines 36-39
add_polygon(sketch5, [(12, 44.5), (12, 45.5), (-12, 45.5), (-12, 44.5)])  # lines 40-43
sketch5.addConstraint([
    Sketcher.Constraint("Vertical", 0),
    Sketcher.Constraint("Horizontal", 1),
    Sketcher.Constraint("Vertical", 2),
    Sketcher.Constraint("Horizontal", 3),
    Sketcher.Constraint("Vertical", 4),
    Sketcher.Constraint("Horizontal", 5),
    Sketcher.Constraint("Vertical", 6),
    Sketcher.Constraint("Horizontal", 7),
    Sketcher.Constraint("Vertical", 8),
    Sketcher.Constraint("Horizontal", 9),
    Sketcher.Constraint("Vertical", 10),
    Sketcher.Constraint("Horizontal", 11),
    Sketcher.Constraint("Vertical", 12),
    Sketcher.Constraint("Horizontal", 13),
    Sketcher.Constraint("Vertical", 14),
    Sketcher.Constraint("Horizontal", 15),
    Sketcher.Constraint("Vertical", 16),
    Sketcher.Constraint("Horizontal", 17),
    Sketcher.Constraint("Vertical", 18),
    Sketcher.Constraint("Horizontal", 19),
    Sketcher.Constraint("Vertical", 20),
    Sketcher.Constraint("Horizontal", 21),
    Sketcher.Constraint("Vertical", 22),
    Sketcher.Constraint("Horizontal", 23),
    Sketcher.Constraint("Vertical", 24),
    Sketcher.Constraint("Horizontal", 25),
    Sketcher.Constraint("Vertical", 26),
    Sketcher.Constraint("Horizontal", 27),
    Sketcher.Constraint("Vertical", 28),
    Sketcher.Constraint("Horizontal", 29),
    Sketcher.Constraint("Vertical", 30),
    Sketcher.Constraint("Horizontal", 31),
    Sketcher.Constraint("Vertical", 32),
    Sketcher.Constraint("Horizontal", 33),
    Sketcher.Constraint("Vertical", 34),
    Sketcher.Constraint("Horizontal", 35),
    Sketcher.Constraint("Vertical", 36),
    Sketcher.Constraint("Horizontal", 37),
    Sketcher.Constraint("Vertical", 38),
    Sketcher.Constraint("Horizontal", 39),
    Sketcher.Constraint("Vertical", 40),
    Sketcher.Constraint("Horizontal", 41),
    Sketcher.Constraint("Vertical", 42),
    Sketcher.Constraint("Horizontal", 43),
    Sketcher.Constraint("Vertical", 3, 2, 4, 2),
    Sketcher.Constraint("Vertical", 2, 2, 5, 2),
    Sketcher.Constraint("Vertical", 7, 2, 8, 2),
    Sketcher.Constraint("Vertical", 6, 2, 9, 2),
    Sketcher.Constraint("Vertical", 11, 2, 12, 2),
    Sketcher.Constraint("Vertical", 10, 2, 13, 2),
    Sketcher.Constraint("Vertical", 15, 2, 16, 2),
    Sketcher.Constraint("Vertical", 14, 2, 17, 2),
    Sketcher.Constraint("Vertical", 19, 2, 20, 2),
    Sketcher.Constraint("Vertical", 18, 2, 21, 2),
    Sketcher.Constraint("Vertical", 23, 2, 24, 2),
    Sketcher.Constraint("Vertical", 22, 2, 25, 2),
    Sketcher.Constraint("Vertical", 27, 2, 28, 2),
    Sketcher.Constraint("Vertical", 26, 2, 29, 2),
    Sketcher.Constraint("Vertical", 31, 2, 32, 2),
    Sketcher.Constraint("Vertical", 30, 2, 33, 2),
    Sketcher.Constraint("Vertical", 35, 2, 36, 2),
    Sketcher.Constraint("Vertical", 34, 2, 37, 2),
    Sketcher.Constraint("Vertical", 39, 2, 40, 2),
    Sketcher.Constraint("Vertical", 38, 2, 41, 2),
    Sketcher.Constraint("Equal", 2, 4),
    Sketcher.Constraint("Equal", 6, 8),
    Sketcher.Constraint("Equal", 10, 12),
    Sketcher.Constraint("Equal", 14, 16),
    Sketcher.Constraint("Equal", 18, 20),
    Sketcher.Constraint("Equal", 22, 24),
    Sketcher.Constraint("Equal", 26, 28),
    Sketcher.Constraint("Equal", 30, 32),
    Sketcher.Constraint("Equal", 34, 36),
    Sketcher.Constraint("Equal", 38, 40),
    Sketcher.Constraint("DistanceX", 1, 2, 1, 1, Q("24 mm")),
    Sketcher.Constraint("DistanceY", 0, 1, 0, 2, Q("1 mm")),
    Sketcher.Constraint("DistanceX", -1, 1, 0, 2, Q("12 mm")),
    Sketcher.Constraint("DistanceY", 0, 2, 4, 2, Q("4 mm")),
    Sketcher.Constraint("DistanceY", 4, 2, 8, 2, Q("4 mm")),
    Sketcher.Constraint("DistanceY", 8, 2, 12, 2, Q("4 mm")),
    Sketcher.Constraint("DistanceY", 12, 2, 16, 2, Q("4 mm")),
    Sketcher.Constraint("DistanceY", 16, 2, 20, 2, Q("4 mm")),
    Sketcher.Constraint("DistanceY", 20, 2, 24, 2, Q("4 mm")),
    Sketcher.Constraint("DistanceY", 24, 2, 28, 2, Q("4 mm")),
    Sketcher.Constraint("DistanceY", 28, 2, 32, 2, Q("4 mm")),
    Sketcher.Constraint("DistanceY", 32, 2, 36, 2, Q("4 mm")),
    Sketcher.Constraint("DistanceY", 36, 2, 40, 2, Q("4 mm")),
    Sketcher.Constraint("DistanceY", -1, 1, 0, 2, Q("5.5 mm")),
])
sketch5.setExpression("Constraints[118]", "Params.sketch5_width")
sketch5.setExpression("Constraints[119]", "Params.sketch5_height")
pad5 = doc.addObject("PartDesign::Pad", "Pad004")
body.addObject(pad5)
pad5.Profile = sketch5
pad5.setExpression("Length", "Params.pad5_length")
doc.recompute()

fillet2 = doc.addObject("PartDesign::Fillet", "Fillet001")
body.addObject(fillet2)
fillet2.Base = (pad5, edges_at(pad5, [
    (12, -9.5, 5),
    (-12, -9.5, 5),
    (12, -9.5, 9),
    (-12, -9.5, 9),
    (12, -9.5, 13),
    (-12, -9.5, 13),
    (12, -9.5, 17),
    (-12, -9.5, 17),
    (12, -9.5, 21),
    (-12, -9.5, 21),
    (12, -9.5, 25),
    (-12, -9.5, 25),
    (12, -9.5, 29),
    (-12, -9.5, 29),
    (12, -9.5, 33),
    (-12, -9.5, 33),
    (12, -9.5, 37),
    (-12, -9.5, 37),
    (12, -9.5, 41),
    (-12, -9.5, 41),
    (12, -9.5, 45),
    (-12, -9.5, 45),
]))
fillet2.setExpression("Radius", "Params.fillet2_radius")
doc.recompute()

fillet3 = doc.addObject("PartDesign::Fillet", "Fillet002")
body.addObject(fillet3)
fillet3.Base = (fillet2, edges_at(fillet2, [
    (16.5, -5.091, 10),
    (-16.5, -5.091, 10),
    (-16.5, -5.091, 40),
    (16.5, -5.091, 40),
    (16.5, 1.591, 40),
    (-16.5, 1.591, 40),
    (-16.5, 1.591, 10),
    (16.5, 1.591, 10),
]))
fillet3.setExpression("Radius", "Params.fillet3_radius")

doc.recompute()
